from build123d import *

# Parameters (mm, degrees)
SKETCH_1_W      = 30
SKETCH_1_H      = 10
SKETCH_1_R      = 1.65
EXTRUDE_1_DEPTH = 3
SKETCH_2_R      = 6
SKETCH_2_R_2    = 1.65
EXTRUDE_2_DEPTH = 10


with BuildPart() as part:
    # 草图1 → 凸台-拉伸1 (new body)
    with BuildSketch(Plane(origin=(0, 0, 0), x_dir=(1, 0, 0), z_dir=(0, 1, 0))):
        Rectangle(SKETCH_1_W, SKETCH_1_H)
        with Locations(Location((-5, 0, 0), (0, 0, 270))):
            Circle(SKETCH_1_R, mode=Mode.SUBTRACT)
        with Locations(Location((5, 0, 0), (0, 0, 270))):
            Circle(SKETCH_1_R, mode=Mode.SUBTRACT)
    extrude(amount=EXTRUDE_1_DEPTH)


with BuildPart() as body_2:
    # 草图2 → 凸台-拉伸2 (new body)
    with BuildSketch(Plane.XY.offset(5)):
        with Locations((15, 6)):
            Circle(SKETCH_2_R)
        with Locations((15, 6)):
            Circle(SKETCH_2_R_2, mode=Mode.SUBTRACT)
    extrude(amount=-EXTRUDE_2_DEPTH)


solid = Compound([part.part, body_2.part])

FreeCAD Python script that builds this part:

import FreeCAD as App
import Part
import Sketcher
from FreeCAD import Vector
Q = App.Units.Quantity

doc = App.newDocument("Part")
body = doc.addObject("PartDesign::Body", "Body")

# Sketch on XZ plane
sketch1 = body.newObject("Sketcher::SketchObject", "Sketch")
sketch1.AttachmentSupport = (doc.getObject("XZ_Plane"), [""])
sketch1.MapMode = "FlatFace"
sketch1.addGeometry([
    Part.LineSegment(Vector(-15, -5, 0), Vector(-15, 5, 0)),  # 0
    Part.LineSegment(Vector(-15, 5, 0), Vector(15, 5, 0)),  # 1
    Part.LineSegment(Vector(15, 5, 0), Vector(15, -5, 0)),  # 2
    Part.LineSegment(Vector(15, -5, 0), Vector(-15, -5, 0)),  # 3
    Part.Circle(Vector(-5, 0, 0), Vector(0, 0, 1), 1.6),  # 4
    Part.Circle(Vector(5, 0, 0), Vector(0, 0, 1), 1.6),  # 5
], False)
sketch1.addConstraint([
    Sketcher.Constraint("Coincident", 0, 2, 1, 1),
    Sketcher.Constraint("Coincident", 1, 2, 2, 1),
    Sketcher.Constraint("Coincident", 2, 2, 3, 1),
    Sketcher.Constraint("Coincident", 3, 2, 0, 1),
    Sketcher.Constraint("Vertical", 0),
    Sketcher.Constraint("Horizontal", 1),
    Sketcher.Constraint("Vertical", 2),
    Sketcher.Constraint("Horizontal", 3),
    Sketcher.Constraint("Equal", 4, 5),
    Sketcher.Constraint("Symmetric", 4, 3, 5, 3, -1, 1),
    Sketcher.Constraint("Symmetric", 0, 2, 2, 2, -1, 1),
    Sketcher.Constraint("PointOnObject", 4, 3, -1),
    Sketcher.Constraint("Diameter", 4, Q("3.3 mm")),
    Sketcher.Constraint("DistanceX", 1, 1, 1, 2, Q("30 mm")),
    Sketcher.Constraint("DistanceY", 0, 1, 0, 2, Q("10 mm")),
    Sketcher.Constraint("DistanceX", 4, 3, -1, 1, Q("5 mm")),
])
pad1 = body.newObject("PartDesign::Pad", "Pad")
pad1.Profile = sketch1
pad1.Length = 3
pad1.Reversed = True
body2 = doc.addObject("PartDesign::Body", "Body001")

# Sketch on XY plane
sketch2 = body2.newObject("Sketcher::SketchObject", "Sketch001")
sketch2.AttachmentSupport = (doc.getObject("XY_Plane001"), [""])
sketch2.MapMode = "FlatFace"
sketch2.AttachmentOffset = App.Placement(Vector(0, 0, 5), App.Rotation())
sketch2.addGeometry([
    Part.Circle(Vector(15, 6, 0), Vector(0, 0, 1), 6),
    Part.Circle(Vector(15, 6, 0), Vector(0, 0, 1), 1.6),
], False)
sketch2.addConstraint([
    Sketcher.Constraint("Coincident", 1, 3, 0, 3),
    Sketcher.Constraint("Diameter", 0, Q("12 mm")),
    Sketcher.Constraint("Diameter", 1, Q("3.3 mm")),
    Sketcher.Constraint("DistanceX", -1, 1, 0, 3, Q("15 mm")),
    Sketcher.Constraint("DistanceY", -1, 1, 0, 3, Q("6 mm")),
])
pad2 = body2.newObject("PartDesign::Pad", "Pad001")
pad2.Profile = sketch2
pad2.Length = 10
pad2.Reversed = True

doc.recompute()
